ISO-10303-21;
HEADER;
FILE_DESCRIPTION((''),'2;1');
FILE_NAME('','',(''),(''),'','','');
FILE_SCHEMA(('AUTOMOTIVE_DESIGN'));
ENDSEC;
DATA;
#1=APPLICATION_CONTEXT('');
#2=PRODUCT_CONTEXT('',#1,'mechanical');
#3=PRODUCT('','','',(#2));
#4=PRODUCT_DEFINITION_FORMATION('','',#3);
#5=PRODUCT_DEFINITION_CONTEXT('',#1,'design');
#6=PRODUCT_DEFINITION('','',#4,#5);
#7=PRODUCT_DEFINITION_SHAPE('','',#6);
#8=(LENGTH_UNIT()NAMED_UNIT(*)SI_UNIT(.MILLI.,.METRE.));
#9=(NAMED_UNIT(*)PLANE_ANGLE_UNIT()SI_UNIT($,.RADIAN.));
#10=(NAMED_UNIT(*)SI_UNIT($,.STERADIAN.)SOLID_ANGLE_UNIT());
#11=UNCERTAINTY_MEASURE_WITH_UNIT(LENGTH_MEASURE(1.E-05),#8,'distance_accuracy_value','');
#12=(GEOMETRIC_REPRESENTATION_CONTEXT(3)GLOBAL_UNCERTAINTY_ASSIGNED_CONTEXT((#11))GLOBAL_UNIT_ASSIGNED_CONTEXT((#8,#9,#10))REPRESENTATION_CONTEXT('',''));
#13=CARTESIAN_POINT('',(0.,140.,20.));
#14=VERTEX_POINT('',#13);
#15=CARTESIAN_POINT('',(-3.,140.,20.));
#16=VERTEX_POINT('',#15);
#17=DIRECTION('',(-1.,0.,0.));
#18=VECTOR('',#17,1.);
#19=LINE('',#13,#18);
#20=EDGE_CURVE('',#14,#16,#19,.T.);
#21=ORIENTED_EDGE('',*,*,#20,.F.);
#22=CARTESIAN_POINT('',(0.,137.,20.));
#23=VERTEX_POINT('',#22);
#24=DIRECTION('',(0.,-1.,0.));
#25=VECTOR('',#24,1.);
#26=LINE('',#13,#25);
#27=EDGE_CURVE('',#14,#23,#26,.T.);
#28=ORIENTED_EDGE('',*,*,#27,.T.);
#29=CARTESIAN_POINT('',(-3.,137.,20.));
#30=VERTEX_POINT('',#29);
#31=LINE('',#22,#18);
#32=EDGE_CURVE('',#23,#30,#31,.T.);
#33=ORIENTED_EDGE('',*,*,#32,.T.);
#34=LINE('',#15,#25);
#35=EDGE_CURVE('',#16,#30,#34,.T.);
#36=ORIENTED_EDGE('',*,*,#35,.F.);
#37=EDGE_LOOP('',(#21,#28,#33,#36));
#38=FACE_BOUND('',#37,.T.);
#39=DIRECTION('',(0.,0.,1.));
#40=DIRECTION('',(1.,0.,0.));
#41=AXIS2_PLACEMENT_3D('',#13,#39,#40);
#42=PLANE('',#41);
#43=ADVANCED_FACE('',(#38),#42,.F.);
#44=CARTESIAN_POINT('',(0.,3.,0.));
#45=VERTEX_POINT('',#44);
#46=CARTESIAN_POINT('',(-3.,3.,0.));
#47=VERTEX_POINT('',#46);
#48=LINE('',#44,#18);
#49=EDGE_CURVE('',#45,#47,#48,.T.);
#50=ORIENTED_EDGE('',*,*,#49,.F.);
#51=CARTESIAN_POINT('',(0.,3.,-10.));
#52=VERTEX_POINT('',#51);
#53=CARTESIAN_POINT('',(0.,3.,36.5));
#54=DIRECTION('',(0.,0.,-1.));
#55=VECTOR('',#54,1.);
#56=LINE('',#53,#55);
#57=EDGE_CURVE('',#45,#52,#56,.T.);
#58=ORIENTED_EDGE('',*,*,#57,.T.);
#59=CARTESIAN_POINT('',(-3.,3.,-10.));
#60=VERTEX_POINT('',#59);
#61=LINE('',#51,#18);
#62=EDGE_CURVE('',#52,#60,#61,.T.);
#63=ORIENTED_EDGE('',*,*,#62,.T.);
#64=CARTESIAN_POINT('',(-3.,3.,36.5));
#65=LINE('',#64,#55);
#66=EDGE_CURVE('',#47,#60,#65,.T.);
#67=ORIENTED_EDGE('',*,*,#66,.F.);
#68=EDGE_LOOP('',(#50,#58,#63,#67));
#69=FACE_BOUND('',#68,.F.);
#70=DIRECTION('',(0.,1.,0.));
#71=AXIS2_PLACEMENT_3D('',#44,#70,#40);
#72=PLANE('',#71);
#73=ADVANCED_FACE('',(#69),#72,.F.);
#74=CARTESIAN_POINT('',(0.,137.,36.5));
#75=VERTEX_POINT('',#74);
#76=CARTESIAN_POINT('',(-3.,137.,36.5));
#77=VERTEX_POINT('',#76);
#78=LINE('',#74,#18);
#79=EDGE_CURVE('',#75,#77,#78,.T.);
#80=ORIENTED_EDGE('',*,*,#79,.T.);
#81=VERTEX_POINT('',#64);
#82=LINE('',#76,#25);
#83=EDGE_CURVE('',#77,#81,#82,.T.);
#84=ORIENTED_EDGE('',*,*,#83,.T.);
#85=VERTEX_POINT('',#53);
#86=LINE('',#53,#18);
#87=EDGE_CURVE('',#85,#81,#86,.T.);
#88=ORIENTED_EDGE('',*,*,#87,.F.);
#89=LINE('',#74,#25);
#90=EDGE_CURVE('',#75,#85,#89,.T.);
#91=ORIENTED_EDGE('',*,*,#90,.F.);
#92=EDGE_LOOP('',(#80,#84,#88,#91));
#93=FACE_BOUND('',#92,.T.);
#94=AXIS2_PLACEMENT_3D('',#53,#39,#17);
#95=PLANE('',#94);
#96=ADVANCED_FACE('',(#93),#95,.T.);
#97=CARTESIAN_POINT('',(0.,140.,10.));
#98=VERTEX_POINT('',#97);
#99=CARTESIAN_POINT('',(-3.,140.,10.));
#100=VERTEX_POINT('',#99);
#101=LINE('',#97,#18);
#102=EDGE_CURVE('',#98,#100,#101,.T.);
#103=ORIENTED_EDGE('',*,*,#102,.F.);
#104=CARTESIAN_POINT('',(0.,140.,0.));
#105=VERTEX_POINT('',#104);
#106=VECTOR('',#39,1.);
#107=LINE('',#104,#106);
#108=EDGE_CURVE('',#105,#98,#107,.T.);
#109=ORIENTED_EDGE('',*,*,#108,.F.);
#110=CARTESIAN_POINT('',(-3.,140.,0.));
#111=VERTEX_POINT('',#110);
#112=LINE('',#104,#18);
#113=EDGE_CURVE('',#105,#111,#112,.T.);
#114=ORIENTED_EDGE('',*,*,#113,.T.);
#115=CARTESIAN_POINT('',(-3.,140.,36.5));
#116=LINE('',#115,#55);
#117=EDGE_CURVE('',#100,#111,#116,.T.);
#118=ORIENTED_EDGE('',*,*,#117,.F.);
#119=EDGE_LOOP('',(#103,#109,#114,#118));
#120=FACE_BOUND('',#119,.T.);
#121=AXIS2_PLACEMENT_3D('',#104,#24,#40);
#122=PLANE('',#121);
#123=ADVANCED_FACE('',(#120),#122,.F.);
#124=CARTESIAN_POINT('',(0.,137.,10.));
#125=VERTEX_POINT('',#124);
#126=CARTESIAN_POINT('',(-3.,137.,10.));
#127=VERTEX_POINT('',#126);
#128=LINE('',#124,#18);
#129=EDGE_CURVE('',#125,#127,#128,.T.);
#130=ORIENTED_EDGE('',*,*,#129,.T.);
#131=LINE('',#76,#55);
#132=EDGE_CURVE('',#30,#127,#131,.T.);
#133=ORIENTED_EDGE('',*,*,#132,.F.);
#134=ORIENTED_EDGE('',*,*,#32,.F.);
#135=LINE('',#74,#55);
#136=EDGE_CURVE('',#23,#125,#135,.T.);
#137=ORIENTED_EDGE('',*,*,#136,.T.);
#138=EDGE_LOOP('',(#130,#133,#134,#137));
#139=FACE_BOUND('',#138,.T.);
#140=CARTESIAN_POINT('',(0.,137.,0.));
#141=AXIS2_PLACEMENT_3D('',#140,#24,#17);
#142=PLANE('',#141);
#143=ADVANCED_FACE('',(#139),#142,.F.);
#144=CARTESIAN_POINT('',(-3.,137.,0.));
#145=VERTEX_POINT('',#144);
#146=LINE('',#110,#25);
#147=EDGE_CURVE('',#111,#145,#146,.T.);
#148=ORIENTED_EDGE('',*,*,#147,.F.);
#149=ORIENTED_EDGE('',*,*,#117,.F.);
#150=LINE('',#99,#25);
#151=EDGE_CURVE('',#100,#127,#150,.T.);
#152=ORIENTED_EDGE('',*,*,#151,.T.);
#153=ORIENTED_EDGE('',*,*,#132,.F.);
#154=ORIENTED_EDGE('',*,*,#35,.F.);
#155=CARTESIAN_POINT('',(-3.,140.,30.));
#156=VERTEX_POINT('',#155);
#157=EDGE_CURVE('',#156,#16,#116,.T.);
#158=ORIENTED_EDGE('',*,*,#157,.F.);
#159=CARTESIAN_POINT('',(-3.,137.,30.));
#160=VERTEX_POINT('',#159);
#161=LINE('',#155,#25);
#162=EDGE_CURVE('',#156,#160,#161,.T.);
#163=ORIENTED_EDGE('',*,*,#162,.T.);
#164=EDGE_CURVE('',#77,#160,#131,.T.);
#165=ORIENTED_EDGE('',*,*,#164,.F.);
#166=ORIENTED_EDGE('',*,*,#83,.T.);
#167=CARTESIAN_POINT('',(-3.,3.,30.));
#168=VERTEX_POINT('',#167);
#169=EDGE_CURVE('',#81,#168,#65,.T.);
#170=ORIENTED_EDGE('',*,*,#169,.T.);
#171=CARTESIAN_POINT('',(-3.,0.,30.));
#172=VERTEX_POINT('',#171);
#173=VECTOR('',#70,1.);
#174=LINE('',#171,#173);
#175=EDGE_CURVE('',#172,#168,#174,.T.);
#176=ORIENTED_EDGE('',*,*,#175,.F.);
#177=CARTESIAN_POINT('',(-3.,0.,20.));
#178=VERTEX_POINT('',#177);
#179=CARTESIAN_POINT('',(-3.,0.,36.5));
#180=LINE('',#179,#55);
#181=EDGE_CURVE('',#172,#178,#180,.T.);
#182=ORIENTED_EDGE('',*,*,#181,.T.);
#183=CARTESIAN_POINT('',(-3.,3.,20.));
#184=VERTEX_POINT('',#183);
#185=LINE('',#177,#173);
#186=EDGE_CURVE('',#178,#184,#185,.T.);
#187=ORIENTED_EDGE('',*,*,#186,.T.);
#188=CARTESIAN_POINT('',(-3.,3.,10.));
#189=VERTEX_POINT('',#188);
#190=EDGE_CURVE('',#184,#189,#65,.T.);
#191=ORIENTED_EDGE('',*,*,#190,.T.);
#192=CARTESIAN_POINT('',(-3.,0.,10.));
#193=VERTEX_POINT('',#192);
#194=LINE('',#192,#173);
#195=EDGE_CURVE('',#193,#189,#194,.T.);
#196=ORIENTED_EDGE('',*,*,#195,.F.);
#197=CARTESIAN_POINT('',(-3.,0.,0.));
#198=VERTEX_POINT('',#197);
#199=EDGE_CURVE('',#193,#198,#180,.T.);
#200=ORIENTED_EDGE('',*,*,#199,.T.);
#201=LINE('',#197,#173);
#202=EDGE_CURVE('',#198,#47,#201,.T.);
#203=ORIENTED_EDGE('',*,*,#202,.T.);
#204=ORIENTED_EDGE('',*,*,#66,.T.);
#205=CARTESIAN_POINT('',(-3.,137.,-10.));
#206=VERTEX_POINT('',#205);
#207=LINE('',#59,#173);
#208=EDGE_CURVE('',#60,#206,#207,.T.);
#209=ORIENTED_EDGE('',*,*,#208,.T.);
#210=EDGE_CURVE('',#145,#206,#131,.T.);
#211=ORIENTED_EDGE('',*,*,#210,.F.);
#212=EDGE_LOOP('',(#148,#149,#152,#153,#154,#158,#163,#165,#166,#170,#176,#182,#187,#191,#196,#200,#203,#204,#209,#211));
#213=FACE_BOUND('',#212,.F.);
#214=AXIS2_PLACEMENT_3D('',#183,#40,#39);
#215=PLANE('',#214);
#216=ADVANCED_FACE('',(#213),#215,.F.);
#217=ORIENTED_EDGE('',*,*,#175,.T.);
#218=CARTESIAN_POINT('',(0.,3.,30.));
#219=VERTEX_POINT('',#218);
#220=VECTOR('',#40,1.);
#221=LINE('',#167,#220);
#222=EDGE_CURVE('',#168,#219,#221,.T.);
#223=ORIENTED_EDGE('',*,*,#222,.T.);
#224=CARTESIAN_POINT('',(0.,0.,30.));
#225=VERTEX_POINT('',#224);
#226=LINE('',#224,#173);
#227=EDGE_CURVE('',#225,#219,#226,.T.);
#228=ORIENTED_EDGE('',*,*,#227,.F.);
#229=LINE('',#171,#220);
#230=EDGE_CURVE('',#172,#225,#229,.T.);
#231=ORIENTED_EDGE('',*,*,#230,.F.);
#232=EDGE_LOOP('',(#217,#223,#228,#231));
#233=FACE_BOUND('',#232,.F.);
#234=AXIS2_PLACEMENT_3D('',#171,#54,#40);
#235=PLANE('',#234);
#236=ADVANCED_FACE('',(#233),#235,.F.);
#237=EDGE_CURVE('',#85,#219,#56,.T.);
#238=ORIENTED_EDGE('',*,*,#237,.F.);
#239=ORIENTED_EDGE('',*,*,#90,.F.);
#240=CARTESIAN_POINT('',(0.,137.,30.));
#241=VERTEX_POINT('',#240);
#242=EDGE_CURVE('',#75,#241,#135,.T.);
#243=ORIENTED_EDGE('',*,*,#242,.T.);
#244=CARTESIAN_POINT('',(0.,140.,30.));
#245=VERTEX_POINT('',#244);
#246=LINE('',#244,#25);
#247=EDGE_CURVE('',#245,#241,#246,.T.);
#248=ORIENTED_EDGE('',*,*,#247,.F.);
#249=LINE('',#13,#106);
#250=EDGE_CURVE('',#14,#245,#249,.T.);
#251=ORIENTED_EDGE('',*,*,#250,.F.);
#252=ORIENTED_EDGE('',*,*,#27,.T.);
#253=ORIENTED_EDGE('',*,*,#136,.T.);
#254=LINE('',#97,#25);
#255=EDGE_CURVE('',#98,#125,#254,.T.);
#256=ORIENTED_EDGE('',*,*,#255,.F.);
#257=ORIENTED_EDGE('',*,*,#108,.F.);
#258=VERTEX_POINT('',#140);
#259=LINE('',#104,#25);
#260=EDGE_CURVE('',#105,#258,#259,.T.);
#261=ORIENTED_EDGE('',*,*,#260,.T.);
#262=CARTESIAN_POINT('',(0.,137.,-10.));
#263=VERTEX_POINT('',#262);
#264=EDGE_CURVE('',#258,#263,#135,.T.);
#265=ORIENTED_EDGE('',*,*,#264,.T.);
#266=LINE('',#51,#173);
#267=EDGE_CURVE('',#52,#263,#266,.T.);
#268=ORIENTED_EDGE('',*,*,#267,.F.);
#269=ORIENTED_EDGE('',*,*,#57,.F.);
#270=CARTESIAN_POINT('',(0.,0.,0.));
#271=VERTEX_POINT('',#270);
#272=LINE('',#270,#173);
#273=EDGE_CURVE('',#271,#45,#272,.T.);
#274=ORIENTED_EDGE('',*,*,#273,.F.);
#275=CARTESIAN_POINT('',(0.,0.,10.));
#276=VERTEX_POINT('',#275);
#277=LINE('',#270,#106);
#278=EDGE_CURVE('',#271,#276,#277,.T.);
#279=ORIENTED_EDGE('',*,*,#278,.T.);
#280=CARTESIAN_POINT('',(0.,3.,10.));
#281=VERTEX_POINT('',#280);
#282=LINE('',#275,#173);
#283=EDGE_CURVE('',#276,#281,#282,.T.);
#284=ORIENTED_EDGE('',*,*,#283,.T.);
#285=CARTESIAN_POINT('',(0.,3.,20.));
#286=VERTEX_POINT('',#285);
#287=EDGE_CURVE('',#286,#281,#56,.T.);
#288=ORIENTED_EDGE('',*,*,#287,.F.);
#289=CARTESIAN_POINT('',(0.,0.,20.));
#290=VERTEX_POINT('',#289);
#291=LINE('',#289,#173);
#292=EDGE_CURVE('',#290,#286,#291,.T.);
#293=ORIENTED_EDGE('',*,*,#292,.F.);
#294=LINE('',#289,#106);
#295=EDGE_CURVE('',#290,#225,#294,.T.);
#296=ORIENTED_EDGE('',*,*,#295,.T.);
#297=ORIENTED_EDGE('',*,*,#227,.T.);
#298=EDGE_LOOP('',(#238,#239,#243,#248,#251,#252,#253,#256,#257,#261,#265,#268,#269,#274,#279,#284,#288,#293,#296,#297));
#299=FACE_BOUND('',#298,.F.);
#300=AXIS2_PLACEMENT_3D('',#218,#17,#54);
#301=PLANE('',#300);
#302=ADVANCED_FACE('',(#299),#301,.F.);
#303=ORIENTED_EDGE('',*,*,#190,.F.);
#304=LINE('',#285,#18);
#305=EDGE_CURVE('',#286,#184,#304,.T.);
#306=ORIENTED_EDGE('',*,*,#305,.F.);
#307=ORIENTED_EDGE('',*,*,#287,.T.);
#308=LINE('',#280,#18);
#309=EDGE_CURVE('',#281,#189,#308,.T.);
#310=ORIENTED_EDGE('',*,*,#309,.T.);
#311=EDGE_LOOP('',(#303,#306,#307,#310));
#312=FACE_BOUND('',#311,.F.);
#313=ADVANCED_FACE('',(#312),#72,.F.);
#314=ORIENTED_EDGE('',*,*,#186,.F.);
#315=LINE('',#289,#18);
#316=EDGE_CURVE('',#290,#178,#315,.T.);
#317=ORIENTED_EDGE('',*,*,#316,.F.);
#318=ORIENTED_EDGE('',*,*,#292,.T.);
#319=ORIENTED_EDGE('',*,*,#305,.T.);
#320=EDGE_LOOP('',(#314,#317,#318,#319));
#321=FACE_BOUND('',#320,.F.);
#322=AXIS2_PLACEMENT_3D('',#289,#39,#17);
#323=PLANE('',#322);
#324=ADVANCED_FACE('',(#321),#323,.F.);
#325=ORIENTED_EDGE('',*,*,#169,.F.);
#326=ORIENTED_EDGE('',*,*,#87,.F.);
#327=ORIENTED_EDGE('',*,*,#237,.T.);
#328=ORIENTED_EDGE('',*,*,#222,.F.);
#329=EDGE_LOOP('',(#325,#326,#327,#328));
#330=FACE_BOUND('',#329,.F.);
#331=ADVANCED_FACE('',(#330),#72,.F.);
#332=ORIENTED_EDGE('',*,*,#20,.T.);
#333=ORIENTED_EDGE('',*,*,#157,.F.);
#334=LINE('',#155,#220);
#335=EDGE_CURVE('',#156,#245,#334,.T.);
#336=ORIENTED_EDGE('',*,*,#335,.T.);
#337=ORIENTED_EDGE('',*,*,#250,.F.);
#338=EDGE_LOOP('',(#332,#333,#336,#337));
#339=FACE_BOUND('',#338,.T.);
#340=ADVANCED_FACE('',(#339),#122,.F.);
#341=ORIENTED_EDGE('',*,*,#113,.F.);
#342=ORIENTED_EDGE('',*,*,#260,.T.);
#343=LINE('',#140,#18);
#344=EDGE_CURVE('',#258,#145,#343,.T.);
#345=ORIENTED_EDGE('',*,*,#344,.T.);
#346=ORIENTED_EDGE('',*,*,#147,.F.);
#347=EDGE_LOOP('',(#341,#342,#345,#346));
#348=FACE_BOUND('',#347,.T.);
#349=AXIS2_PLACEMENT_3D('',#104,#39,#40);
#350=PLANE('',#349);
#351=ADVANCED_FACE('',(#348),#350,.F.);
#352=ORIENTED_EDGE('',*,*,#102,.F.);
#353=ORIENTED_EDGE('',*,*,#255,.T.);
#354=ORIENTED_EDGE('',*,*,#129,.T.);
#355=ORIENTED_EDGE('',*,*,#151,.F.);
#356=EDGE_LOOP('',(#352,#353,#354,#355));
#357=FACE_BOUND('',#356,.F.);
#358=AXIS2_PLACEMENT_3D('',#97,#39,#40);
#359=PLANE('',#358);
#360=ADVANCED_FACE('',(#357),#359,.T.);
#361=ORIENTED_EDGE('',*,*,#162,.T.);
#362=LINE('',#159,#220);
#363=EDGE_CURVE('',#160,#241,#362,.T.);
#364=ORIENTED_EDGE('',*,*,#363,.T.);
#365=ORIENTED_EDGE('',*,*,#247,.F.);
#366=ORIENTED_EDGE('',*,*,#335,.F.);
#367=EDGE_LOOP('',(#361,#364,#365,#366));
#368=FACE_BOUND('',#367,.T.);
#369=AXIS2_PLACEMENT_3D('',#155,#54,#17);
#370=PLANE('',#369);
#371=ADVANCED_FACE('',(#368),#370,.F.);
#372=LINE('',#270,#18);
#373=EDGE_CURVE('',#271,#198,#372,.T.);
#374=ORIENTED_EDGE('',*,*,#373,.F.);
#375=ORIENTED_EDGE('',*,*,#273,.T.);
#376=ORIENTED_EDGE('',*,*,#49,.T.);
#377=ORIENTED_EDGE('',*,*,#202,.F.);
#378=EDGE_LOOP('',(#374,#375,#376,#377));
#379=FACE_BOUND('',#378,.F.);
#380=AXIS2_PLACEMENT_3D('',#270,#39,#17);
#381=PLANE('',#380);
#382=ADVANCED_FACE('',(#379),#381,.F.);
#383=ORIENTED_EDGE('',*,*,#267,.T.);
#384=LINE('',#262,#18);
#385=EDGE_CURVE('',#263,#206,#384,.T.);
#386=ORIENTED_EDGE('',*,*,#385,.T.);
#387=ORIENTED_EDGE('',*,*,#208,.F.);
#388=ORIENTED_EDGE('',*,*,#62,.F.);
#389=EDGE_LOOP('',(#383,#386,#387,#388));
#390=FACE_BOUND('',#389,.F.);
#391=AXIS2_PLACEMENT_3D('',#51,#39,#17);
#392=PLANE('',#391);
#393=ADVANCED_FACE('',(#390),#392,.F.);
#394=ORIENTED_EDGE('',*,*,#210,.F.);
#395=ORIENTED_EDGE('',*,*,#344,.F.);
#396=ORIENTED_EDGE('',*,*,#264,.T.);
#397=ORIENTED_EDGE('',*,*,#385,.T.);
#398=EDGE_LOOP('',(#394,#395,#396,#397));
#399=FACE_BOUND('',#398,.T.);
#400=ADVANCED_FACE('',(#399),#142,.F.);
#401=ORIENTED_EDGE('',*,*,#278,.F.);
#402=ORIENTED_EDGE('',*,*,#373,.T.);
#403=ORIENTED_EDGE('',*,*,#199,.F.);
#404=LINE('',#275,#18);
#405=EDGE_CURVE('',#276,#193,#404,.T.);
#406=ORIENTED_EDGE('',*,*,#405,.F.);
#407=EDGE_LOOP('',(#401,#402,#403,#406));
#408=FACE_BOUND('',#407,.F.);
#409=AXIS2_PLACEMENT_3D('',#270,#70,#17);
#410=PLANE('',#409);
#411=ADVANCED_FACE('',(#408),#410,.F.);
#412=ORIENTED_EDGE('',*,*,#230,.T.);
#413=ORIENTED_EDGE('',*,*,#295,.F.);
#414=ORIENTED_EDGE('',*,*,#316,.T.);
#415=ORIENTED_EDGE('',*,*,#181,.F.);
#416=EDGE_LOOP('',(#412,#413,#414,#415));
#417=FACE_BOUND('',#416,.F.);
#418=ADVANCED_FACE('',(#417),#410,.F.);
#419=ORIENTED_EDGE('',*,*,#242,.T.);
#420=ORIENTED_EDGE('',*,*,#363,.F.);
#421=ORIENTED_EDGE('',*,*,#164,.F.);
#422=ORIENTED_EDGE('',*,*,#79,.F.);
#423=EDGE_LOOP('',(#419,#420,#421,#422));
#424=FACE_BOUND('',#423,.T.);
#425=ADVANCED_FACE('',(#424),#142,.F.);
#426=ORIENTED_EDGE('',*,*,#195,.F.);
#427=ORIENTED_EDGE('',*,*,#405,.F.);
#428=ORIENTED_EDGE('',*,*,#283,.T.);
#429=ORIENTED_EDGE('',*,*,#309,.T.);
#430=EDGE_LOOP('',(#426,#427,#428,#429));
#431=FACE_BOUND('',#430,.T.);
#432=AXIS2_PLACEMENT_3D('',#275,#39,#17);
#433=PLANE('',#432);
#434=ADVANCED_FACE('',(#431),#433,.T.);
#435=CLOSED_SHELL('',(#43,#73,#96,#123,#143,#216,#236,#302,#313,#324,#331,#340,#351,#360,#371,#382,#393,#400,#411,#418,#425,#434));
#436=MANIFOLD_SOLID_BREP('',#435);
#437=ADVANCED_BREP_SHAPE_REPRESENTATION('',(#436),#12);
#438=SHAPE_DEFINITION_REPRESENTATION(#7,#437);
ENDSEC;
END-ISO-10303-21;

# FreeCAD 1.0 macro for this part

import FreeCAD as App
import Part
import Sketcher
from FreeCAD import Vector
Q = App.Units.Quantity

doc = App.newDocument("Part")
body = doc.addObject("PartDesign::Body", "Body")
body.AllowCompound = True

# Sketch on XZ plane
sketch1 = body.newObject("Sketcher::SketchObject", "Sketch")
sketch1.AttachmentSupport = (doc.getObject("XZ_Plane"), [""])
sketch1.MapMode = "FlatFace"
sketch1.addGeometry(Part.LineSegment(Vector(0, 10, 0), Vector(0, 0, 0)), False)
sketch1.addGeometry(Part.LineSegment(Vector(0, 0, 0), Vector(-3, 0, 0)), False)
sketch1.addGeometry(Part.LineSegment(Vector(-3, 0, 0), Vector(-3, 10, 0)), False)
sketch1.addGeometry(Part.LineSegment(Vector(-3, 10, 0), Vector(0, 10, 0)), False)
sketch1.addGeometry(Part.LineSegment(Vector(0, 30, 0), Vector(0, 20, 0)), False)
sketch1.addGeometry(Part.LineSegment(Vector(0, 20, 0), Vector(-3, 20, 0)), False)
sketch1.addGeometry(Part.LineSegment(Vector(-3, 20, 0), Vector(-3, 30, 0)), False)
sketch1.addGeometry(Part.LineSegment(Vector(-3, 30, 0), Vector(0, 30, 0)), False)
sketch1.addConstraint(Sketcher.Constraint("Coincident", 0, 2, 1, 1))
sketch1.addConstraint(Sketcher.Constraint("Coincident", 1, 2, 2, 1))
sketch1.addConstraint(Sketcher.Constraint("Coincident", 2, 2, 3, 1))
sketch1.addConstraint(Sketcher.Constraint("Coincident", 3, 2, 0, 1))
sketch1.addConstraint(Sketcher.Constraint("Coincident", 4, 2, 5, 1))
sketch1.addConstraint(Sketcher.Constraint("Coincident", 5, 2, 6, 1))
sketch1.addConstraint(Sketcher.Constraint("Coincident", 6, 2, 7, 1))
sketch1.addConstraint(Sketcher.Constraint("Coincident", 7, 2, 4, 1))
sketch1.addConstraint(Sketcher.Constraint("Vertical", 0))
sketch1.addConstraint(Sketcher.Constraint("Horizontal", 1))
sketch1.addConstraint(Sketcher.Constraint("Vertical", 2))
sketch1.addConstraint(Sketcher.Constraint("Horizontal", 3))
sketch1.addConstraint(Sketcher.Constraint("Vertical", 4))
sketch1.addConstraint(Sketcher.Constraint("Horizontal", 5))
sketch1.addConstraint(Sketcher.Constraint("Vertical", 6))
sketch1.addConstraint(Sketcher.Constraint("Horizontal", 7))
sketch1.addConstraint(Sketcher.Constraint("Coincident", 0, 2, -1, 1))
sketch1.addConstraint(Sketcher.Constraint("PointOnObject", 4, 2, -2))
sketch1.addConstraint(Sketcher.Constraint("Vertical", 2, 2, 5, 2))
sketch1.addConstraint(Sketcher.Constraint("Equal", 2, 4))
sketch1.addConstraint(Sketcher.Constraint("DistanceX", 1, 2, 1, 1, Q("3 mm")))
sketch1.addConstraint(Sketcher.Constraint("DistanceY", 0, 2, 0, 1, Q("10 mm")))
sketch1.addConstraint(Sketcher.Constraint("DistanceY", 3, 2, 4, 2, Q("10 mm")))
pad1 = body.newObject("PartDesign::Pad", "Pad")
pad1.Profile = sketch1
pad1.Length = 3
pad1.Reversed = True

# Sketch on XZ plane
sketch2 = body.newObject("Sketcher::SketchObject", "Sketch001")
sketch2.AttachmentSupport = (doc.getObject("XZ_Plane"), [""])
sketch2.MapMode = "FlatFace"
sketch2.AttachmentOffset = App.Placement(Vector(0, 0, -3), App.Rotation())
sketch2.addGeometry(Part.LineSegment(Vector(0, -10, 0), Vector(-3, -10, 0)), False)
sketch2.addGeometry(Part.LineSegment(Vector(-3, -10, 0), Vector(-3, 36.5, 0)), False)
sketch2.addGeometry(Part.LineSegment(Vector(-3, 36.5, 0), Vector(0, 36.5, 0)), False)
sketch2.addGeometry(Part.LineSegment(Vector(0, 36.5, 0), Vector(0, -10, 0)), False)
sketch2.addConstraint(Sketcher.Constraint("Coincident", 0, 2, 1, 1))
sketch2.addConstraint(Sketcher.Constraint("Coincident", 1, 2, 2, 1))
sketch2.addConstraint(Sketcher.Constraint("Coincident", 2, 2, 3, 1))
sketch2.addConstraint(Sketcher.Constraint("Coincident", 3, 2, 0, 1))
sketch2.addConstraint(Sketcher.Constraint("Horizontal", 0))
sketch2.addConstraint(Sketcher.Constraint("Vertical", 1))
sketch2.addConstraint(Sketcher.Constraint("Horizontal", 2))
sketch2.addConstraint(Sketcher.Constraint("Vertical", 3))
sketch2.addConstraint(Sketcher.Constraint("PointOnObject", 2, 2, -2))
sketch2.addConstraint(Sketcher.Constraint("DistanceY", 0, 2, -1, 1, Q("10 mm")))
sketch2.addConstraint(Sketcher.Constraint("DistanceX", 0, 2, 0, 1, Q("3 mm")))
sketch2.addConstraint(Sketcher.Constraint("DistanceY", 1, 1, 1, 2, Q("46.5 mm")))
pad2 = body.newObject("PartDesign::Pad", "Pad001")
pad2.Profile = sketch2
pad2.Length = 67
pad2.Reversed = True
doc.recompute()

datumplane = body.newObject("PartDesign::Plane", "DatumPlane")
datumplane.AttachmentSupport = (doc.getObject("XZ_Plane"), [""])
datumplane.MapMode = "FlatFace"
datumplane.AttachmentOffset = App.Placement(Vector(0, 0, -70), App.Rotation())
mirrored = body.newObject("PartDesign::Mirrored", "Mirrored")
mirrored.Originals = [pad2, pad1]
mirrored.MirrorPlane = (datumplane, [""])
body.Tip = mirrored

doc.recompute()
